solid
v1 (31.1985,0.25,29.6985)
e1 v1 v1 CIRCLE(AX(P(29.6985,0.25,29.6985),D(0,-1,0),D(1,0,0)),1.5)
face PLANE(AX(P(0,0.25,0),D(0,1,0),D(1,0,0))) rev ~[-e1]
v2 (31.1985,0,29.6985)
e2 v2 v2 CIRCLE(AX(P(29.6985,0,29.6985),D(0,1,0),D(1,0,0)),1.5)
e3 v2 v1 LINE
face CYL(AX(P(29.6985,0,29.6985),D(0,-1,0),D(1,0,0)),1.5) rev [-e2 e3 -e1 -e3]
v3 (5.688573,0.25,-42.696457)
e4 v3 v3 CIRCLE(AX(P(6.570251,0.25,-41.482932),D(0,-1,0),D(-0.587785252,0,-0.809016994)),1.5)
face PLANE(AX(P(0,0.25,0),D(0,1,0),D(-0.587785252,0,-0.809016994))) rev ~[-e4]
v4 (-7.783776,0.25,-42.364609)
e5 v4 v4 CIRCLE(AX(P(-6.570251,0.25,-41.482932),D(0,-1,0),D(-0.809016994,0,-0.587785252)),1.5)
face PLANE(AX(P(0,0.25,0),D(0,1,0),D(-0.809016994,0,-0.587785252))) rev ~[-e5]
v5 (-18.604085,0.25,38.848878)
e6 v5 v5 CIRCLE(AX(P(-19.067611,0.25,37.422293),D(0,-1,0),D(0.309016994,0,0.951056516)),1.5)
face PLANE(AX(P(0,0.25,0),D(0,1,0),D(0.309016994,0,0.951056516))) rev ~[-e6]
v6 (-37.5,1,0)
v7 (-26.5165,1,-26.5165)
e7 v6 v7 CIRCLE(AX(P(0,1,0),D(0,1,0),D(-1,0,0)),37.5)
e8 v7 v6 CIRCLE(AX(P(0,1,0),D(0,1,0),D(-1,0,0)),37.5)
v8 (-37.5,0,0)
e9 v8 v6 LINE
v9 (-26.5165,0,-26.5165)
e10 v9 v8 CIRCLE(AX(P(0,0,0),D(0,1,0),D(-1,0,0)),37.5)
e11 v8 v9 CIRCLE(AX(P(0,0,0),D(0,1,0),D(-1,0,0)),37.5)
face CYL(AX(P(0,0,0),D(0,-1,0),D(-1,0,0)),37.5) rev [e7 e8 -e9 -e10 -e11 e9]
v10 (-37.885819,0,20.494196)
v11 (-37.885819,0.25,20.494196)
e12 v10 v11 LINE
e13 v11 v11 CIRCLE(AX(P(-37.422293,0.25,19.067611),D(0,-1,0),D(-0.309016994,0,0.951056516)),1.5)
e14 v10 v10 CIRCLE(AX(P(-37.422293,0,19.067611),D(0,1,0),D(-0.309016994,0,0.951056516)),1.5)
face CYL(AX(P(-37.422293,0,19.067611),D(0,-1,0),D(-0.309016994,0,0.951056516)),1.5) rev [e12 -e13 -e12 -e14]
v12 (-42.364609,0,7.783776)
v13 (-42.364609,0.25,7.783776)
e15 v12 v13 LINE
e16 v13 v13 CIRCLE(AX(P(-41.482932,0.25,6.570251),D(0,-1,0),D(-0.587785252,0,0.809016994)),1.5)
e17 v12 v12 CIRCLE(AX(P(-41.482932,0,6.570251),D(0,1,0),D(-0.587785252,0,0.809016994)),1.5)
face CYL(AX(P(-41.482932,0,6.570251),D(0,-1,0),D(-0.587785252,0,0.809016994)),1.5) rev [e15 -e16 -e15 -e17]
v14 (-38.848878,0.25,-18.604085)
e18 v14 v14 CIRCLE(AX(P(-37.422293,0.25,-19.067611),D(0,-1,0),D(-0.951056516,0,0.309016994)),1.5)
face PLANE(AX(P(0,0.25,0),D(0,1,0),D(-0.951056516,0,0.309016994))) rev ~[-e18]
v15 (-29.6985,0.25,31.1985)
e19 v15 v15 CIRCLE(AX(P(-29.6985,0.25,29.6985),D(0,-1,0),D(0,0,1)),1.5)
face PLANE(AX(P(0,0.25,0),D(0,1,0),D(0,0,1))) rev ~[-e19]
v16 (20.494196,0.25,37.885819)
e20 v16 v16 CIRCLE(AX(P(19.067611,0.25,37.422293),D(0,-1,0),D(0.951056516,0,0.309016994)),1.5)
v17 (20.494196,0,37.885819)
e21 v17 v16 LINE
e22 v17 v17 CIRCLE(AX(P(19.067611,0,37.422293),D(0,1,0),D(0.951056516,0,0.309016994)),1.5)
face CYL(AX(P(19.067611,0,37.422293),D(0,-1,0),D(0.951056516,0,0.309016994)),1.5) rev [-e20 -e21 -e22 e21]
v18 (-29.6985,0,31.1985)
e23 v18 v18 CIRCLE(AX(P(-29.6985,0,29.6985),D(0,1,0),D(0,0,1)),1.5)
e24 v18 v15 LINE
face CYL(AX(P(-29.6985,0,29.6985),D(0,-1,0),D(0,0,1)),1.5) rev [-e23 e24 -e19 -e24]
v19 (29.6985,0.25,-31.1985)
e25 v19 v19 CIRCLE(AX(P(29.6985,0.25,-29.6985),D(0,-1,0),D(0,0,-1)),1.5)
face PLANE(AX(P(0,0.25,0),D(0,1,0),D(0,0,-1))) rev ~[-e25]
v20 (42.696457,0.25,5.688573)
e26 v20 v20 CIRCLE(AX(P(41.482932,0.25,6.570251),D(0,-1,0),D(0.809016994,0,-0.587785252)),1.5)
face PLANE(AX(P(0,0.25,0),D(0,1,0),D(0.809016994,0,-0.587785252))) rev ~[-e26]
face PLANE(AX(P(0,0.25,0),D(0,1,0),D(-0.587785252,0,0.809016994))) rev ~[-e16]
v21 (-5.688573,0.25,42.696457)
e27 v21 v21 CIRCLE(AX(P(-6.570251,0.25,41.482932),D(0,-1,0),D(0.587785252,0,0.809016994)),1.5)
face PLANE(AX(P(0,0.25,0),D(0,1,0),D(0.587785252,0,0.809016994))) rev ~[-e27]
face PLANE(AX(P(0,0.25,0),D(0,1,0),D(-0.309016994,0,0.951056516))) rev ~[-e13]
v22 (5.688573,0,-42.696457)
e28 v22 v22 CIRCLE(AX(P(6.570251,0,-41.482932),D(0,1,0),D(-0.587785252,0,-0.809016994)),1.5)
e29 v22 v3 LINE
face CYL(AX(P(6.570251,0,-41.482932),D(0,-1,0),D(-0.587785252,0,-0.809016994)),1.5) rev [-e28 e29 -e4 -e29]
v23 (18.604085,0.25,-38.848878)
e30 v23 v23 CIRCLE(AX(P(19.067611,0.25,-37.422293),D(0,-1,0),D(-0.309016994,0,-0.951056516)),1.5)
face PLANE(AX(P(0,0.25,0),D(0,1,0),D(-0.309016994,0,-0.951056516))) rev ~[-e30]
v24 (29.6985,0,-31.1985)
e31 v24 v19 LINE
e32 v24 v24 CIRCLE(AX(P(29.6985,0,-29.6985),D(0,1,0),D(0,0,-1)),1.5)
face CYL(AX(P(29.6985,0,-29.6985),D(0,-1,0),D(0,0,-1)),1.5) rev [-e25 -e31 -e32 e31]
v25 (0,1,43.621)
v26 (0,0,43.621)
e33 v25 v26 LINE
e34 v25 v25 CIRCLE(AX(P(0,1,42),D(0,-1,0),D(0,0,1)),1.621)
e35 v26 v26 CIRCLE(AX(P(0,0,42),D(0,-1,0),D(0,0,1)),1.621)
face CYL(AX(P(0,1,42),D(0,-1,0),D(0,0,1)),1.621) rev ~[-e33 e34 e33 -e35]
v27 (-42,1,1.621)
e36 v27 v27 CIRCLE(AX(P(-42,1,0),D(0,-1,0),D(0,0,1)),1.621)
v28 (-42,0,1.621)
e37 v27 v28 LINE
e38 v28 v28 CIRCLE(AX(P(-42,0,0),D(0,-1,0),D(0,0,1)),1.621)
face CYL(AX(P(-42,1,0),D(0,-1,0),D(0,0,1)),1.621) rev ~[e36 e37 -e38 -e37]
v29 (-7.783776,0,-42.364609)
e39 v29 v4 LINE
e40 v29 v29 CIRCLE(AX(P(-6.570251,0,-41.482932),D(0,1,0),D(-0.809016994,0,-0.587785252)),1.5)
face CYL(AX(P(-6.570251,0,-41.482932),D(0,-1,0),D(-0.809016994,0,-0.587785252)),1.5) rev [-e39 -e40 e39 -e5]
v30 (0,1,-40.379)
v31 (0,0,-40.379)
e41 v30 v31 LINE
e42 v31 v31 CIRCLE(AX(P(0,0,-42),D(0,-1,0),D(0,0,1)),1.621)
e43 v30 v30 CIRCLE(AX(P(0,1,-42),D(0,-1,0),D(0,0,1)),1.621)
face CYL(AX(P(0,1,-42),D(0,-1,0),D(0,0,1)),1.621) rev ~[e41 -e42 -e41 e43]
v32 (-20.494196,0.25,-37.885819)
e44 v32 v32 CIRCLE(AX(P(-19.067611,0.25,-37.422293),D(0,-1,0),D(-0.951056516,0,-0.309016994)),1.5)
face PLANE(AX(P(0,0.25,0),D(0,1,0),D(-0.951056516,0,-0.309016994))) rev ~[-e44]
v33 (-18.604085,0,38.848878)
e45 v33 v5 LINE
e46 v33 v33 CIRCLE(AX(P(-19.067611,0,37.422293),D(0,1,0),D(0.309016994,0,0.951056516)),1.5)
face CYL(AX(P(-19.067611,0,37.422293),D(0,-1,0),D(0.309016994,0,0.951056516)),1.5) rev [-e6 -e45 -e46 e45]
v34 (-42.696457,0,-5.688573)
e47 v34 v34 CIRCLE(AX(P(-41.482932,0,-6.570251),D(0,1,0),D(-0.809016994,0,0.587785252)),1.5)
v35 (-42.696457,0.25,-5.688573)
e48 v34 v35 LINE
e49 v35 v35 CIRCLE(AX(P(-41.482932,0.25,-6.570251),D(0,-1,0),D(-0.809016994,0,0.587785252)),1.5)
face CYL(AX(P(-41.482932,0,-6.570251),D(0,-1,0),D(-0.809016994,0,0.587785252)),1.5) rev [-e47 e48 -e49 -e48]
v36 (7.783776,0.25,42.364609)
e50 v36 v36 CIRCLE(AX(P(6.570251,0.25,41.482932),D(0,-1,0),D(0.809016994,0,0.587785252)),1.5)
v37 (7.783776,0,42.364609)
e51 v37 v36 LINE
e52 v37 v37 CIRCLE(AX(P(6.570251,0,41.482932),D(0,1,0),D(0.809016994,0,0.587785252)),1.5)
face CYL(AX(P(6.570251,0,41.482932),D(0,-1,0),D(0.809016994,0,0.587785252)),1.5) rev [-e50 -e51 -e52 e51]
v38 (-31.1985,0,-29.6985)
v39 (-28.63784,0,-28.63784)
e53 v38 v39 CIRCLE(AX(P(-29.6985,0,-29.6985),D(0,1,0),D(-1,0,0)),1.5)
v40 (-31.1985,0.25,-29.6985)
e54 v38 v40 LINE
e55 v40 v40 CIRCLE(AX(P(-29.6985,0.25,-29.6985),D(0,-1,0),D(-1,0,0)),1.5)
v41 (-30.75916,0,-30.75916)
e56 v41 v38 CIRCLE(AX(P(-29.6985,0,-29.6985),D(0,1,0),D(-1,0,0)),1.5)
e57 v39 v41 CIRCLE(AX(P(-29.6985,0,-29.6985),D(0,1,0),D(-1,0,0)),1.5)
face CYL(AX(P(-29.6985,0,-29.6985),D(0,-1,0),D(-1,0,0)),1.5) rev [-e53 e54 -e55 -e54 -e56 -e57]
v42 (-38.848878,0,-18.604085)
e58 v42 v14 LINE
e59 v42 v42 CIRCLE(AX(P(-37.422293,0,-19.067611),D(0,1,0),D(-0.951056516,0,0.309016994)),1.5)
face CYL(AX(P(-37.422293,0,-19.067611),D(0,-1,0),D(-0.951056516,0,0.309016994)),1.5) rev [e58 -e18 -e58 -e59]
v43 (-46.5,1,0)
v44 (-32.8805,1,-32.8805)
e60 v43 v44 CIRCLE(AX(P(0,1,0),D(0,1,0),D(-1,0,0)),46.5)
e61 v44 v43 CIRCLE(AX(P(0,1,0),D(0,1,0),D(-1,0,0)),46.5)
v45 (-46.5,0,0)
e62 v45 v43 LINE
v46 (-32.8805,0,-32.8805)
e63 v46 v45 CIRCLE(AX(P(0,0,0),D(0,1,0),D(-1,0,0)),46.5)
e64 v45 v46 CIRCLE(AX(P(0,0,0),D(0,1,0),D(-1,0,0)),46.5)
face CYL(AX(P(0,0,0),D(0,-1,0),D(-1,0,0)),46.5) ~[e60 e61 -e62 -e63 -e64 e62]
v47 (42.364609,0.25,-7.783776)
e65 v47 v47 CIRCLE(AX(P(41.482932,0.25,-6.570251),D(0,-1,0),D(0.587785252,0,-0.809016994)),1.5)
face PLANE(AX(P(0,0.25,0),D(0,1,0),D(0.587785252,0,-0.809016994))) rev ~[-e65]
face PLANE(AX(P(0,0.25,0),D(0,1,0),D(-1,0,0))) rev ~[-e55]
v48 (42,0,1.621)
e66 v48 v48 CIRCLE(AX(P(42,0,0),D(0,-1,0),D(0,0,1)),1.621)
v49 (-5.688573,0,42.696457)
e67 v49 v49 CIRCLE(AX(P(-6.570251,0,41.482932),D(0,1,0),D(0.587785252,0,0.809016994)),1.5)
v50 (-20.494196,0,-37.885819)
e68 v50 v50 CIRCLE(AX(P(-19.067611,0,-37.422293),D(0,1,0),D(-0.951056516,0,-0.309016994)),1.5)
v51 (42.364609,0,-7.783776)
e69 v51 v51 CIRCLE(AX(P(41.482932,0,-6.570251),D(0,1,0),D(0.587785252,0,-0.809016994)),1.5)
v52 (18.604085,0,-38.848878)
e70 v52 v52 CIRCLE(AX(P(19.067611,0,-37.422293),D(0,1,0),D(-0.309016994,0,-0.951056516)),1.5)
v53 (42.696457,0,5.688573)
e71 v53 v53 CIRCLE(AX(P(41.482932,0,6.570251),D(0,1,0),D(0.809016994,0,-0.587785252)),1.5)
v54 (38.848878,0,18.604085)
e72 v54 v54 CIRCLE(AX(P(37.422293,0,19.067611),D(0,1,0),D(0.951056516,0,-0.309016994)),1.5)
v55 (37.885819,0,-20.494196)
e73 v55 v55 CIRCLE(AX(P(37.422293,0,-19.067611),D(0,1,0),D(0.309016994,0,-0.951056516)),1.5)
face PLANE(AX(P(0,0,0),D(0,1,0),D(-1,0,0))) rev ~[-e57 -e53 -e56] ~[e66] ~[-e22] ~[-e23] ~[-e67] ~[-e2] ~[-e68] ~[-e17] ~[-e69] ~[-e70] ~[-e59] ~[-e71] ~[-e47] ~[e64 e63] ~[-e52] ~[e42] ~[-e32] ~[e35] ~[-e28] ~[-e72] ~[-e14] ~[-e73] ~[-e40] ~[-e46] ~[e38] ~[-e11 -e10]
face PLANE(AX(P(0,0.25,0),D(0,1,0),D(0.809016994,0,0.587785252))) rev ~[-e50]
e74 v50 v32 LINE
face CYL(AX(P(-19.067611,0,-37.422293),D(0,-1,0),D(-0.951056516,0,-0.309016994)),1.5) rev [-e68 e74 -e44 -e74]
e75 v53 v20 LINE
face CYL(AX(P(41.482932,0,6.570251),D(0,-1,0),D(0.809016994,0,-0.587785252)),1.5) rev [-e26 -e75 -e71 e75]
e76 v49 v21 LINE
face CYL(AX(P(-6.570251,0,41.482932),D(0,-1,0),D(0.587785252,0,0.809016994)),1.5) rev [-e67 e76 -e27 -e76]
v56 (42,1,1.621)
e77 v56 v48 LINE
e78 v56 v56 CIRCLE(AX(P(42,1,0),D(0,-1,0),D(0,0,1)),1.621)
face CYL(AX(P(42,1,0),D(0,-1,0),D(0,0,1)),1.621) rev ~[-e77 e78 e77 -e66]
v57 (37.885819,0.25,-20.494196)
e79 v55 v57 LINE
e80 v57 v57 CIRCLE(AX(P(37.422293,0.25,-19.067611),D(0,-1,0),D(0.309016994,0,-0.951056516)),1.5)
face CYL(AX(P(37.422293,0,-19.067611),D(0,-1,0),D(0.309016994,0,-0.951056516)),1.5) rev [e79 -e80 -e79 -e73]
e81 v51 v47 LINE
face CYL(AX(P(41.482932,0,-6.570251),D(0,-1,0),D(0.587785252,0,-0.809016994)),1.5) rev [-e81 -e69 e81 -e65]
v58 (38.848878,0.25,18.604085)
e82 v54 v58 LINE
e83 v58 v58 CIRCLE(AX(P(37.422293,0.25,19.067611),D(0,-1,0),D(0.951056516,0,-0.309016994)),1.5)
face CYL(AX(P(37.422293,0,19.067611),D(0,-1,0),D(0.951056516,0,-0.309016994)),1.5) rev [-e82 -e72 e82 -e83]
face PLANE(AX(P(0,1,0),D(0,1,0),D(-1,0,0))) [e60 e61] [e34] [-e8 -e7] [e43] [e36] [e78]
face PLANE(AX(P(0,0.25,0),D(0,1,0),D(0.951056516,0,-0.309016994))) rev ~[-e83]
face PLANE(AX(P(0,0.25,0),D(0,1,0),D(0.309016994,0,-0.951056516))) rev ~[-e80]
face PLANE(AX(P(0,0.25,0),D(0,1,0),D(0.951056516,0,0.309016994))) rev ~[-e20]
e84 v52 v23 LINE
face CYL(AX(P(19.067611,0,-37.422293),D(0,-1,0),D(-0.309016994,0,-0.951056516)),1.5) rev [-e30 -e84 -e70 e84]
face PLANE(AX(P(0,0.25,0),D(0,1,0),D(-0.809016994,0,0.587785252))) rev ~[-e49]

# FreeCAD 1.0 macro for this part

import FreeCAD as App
import Part
import Sketcher
from FreeCAD import Vector

doc = App.newDocument("Part")
body = doc.addObject("PartDesign::Body", "Body")

# Sketch on XZ plane
sketch1 = doc.addObject("Sketcher::SketchObject", "Sketch")
body.addObject(sketch1)
sketch1.AttachmentSupport = (doc.XZ_Plane, [""])
sketch1.MapMode = "FlatFace"
sketch1.addGeometry([
    Part.Circle(Vector(0, 0, 0), Vector(0, 0, 1), 46),
    Part.Circle(Vector(0, 0, 0), Vector(0, 0, 1), 38),
], False)
sketch1.addConstraint([
    Sketcher.Constraint("Coincident", 0, 3, -1, 1),
    Sketcher.Constraint("Coincident", 1, 3, -1, 1),
    Sketcher.Constraint("Diameter", 1, 75.0),
    Sketcher.Constraint("Diameter", 0, 93.0),
])
pad1 = doc.addObject("PartDesign::Pad", "Pad")
body.addObject(pad1)
pad1.Profile = sketch1
pad1.Length = 1
pad1.Reversed = True

# Sketch on XZ plane
sketch2 = doc.addObject("Sketcher::SketchObject", "Sketch001")
body.addObject(sketch2)
sketch2.AttachmentSupport = (doc.XZ_Plane, [""])
sketch2.MapMode = "FlatFace"
sketch2.AttachmentOffset = App.Placement(Vector(0, 0, -1), App.Rotation())
sketch2.addGeometry([
    Part.Circle(Vector(-42, 0, 0), Vector(0, 0, 1), 1.6),
    Part.Circle(Vector(42, 0, 0), Vector(0, 0, 1), 1.6),
    Part.Circle(Vector(0, -42, 0), Vector(0, 0, 1), 1.6),
    Part.Circle(Vector(0, 42, 0), Vector(0, 0, 1), 1.6),
], False)
sketch2.addConstraint([
    Sketcher.Constraint("Equal", 0, 1),
    Sketcher.Constraint("Equal", 1, 2),
    Sketcher.Constraint("Equal", 2, 3),
    Sketcher.Constraint("Symmetric", 0, 3, 1, 3, -1, 1),
    Sketcher.Constraint("Symmetric", 2, 3, 3, 3, -1, 1),
    Sketcher.Constraint("PointOnObject", 0, 3, -1),
    Sketcher.Constraint("PointOnObject", 2, 3, -2),
    Sketcher.Constraint("Diameter", 0, 3.242),
    Sketcher.Constraint("DistanceX", 0, 3, -1, 1, 42.0),
    Sketcher.Constraint("DistanceY", 2, 3, -1, 1, 42.0),
])
doc.recompute()
hole = doc.addObject("PartDesign::Hole", "Hole")
body.addObject(hole)
hole.Profile = sketch2
hole.ThreadType = "None"
hole.Diameter = 3.242
hole.DepthType = "Dimension"
hole.Depth = 11.8
hole.DrillPoint = "Flat"
hole.Reversed = True

# Sketch on XZ plane
sketch3 = doc.addObject("Sketcher::SketchObject", "Sketch002")
body.addObject(sketch3)
sketch3.AttachmentSupport = (doc.XZ_Plane, [""])
sketch3.MapMode = "FlatFace"
sketch3.addGeometry(Part.Circle(Vector(-29.7, -29.7, 0), Vector(0, 0, 1), 1.5), False)
sketch3.addConstraint([
    Sketcher.Constraint("Diameter", 0, 3.0),
    Sketcher.Constraint("DistanceX", 0, 3, -1, 1, 29.6985),
    Sketcher.Constraint("DistanceY", 0, 3, -1, 1, 29.6985),
])
pocket1 = doc.addObject("PartDesign::Pocket", "Pocket")
body.addObject(pocket1)
pocket1.Profile = sketch3
pocket1.Length = 0.25
doc.recompute()

polarpattern = doc.addObject("PartDesign::PolarPattern", "PolarPattern")
body.addObject(polarpattern)
polarpattern.Originals = [pocket1]
polarpattern.Axis = (doc.Y_Axis, [""])
polarpattern.Angle = 360
polarpattern.Occurrences = 20
body.Tip = polarpattern

doc.recompute()
